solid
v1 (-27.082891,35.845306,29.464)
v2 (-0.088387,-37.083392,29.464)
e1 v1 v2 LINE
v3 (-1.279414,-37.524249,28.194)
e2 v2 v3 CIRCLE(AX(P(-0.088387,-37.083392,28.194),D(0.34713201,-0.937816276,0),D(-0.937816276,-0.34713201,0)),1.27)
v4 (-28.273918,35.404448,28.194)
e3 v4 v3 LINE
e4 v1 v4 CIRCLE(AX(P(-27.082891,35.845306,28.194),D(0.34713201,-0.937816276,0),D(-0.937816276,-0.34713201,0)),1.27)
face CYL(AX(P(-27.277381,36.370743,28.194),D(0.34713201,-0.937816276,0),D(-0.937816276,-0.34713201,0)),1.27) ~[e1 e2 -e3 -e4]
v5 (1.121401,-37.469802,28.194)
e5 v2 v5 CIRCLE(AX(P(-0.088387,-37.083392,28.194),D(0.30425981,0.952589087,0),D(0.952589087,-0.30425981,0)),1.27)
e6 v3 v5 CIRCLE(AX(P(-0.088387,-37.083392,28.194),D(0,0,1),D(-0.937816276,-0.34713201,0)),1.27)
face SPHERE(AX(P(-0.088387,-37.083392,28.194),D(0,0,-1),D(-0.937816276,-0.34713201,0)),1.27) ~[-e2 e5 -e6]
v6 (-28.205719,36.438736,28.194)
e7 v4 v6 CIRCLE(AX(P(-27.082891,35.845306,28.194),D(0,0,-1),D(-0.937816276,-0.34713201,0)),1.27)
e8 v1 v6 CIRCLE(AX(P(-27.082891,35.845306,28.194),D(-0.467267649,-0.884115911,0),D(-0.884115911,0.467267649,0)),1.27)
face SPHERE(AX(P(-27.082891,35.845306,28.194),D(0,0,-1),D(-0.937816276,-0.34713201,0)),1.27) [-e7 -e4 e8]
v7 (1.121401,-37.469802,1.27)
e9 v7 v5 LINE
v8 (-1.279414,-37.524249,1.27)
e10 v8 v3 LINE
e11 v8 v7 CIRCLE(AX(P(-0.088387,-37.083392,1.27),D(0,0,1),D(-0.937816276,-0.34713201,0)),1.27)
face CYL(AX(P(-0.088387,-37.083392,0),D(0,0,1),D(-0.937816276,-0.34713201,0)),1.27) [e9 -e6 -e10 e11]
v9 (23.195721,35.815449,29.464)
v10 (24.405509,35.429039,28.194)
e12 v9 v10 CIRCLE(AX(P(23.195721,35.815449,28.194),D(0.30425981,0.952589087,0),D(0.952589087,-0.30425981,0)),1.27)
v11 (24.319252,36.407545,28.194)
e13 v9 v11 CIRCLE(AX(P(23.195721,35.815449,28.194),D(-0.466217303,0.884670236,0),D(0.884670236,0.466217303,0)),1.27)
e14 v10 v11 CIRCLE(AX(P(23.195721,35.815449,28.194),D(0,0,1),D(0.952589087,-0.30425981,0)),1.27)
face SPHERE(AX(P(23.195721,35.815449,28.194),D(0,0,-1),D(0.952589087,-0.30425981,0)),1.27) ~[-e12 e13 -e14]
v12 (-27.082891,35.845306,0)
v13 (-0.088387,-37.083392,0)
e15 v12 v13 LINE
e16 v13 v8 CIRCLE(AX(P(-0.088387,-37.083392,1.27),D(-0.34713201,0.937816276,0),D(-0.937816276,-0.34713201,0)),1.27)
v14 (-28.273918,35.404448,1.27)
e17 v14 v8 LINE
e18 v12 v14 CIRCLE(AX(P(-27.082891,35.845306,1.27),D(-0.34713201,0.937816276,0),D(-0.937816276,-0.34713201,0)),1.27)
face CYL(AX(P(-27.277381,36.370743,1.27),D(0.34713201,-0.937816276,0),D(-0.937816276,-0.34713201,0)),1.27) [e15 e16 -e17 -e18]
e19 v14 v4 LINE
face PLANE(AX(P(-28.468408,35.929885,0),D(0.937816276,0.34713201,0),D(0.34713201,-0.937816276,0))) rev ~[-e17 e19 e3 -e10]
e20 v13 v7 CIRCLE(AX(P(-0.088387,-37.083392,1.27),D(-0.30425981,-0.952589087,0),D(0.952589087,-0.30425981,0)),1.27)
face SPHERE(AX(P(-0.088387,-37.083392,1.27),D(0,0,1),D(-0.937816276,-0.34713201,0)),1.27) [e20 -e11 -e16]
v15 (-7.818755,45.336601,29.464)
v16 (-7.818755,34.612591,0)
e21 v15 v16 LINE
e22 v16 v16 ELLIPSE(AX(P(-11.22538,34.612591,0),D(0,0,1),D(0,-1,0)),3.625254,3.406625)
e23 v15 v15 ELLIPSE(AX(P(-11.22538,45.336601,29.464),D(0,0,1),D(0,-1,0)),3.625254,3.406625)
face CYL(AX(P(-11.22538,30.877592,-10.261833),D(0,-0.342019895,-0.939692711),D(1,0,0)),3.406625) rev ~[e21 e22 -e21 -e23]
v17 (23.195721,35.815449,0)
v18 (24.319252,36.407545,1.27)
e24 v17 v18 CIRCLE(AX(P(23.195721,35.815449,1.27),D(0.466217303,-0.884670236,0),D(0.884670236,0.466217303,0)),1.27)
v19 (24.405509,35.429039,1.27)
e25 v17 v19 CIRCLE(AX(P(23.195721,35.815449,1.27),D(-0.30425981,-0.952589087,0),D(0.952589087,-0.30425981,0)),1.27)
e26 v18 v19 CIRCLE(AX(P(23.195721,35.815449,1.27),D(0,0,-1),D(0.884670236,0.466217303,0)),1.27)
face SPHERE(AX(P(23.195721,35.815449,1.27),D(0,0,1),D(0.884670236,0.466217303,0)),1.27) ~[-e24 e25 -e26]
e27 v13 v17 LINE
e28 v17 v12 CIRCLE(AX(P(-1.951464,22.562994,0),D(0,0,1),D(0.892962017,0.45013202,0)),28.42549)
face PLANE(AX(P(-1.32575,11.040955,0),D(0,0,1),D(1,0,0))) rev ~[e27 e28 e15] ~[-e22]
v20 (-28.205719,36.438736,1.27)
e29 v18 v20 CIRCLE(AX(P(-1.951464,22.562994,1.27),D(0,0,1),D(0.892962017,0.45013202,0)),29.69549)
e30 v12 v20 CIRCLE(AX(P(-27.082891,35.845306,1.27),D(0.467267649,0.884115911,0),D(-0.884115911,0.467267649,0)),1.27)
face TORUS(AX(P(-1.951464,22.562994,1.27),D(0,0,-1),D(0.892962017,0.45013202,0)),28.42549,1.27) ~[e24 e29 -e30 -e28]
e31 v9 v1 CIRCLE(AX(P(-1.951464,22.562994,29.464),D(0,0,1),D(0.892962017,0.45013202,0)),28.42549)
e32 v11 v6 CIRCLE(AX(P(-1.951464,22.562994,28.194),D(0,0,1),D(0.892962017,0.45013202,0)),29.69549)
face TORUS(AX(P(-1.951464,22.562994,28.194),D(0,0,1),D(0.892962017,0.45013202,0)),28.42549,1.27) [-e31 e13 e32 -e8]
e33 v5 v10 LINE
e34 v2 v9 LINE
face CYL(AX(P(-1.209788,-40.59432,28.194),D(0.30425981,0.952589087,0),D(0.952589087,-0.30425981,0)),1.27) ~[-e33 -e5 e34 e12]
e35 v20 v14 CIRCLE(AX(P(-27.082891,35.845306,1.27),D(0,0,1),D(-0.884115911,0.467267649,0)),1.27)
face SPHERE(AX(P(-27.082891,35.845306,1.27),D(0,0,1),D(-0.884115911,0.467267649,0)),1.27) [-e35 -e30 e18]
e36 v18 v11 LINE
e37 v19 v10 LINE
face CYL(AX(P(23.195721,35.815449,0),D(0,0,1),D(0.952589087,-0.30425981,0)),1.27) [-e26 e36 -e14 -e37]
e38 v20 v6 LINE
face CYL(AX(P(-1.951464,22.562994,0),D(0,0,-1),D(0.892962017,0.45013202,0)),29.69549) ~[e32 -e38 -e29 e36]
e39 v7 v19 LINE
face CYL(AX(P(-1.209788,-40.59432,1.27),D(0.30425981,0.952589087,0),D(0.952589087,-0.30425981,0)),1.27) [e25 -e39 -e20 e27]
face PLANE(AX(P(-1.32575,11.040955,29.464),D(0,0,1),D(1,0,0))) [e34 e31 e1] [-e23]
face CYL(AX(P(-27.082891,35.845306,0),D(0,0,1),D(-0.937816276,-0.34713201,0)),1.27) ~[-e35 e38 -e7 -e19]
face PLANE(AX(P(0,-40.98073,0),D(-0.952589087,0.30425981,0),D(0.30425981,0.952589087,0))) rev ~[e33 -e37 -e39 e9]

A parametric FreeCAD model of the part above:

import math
import FreeCAD as App
import Part
import Sketcher
Q = App.Units.Quantity

doc = App.newDocument("Part")
params = doc.addObject("Spreadsheet::Sheet", "Params")
for row, (alias, value) in enumerate([
    ("pad1_length", "1.16 in"),
    ("fillet_radius", "0.05 in"),
    ("pocket1_length", "5.5 in"),
], start=1):
    params.set(f"A{row}", alias)
    params.set(f"B{row}", "=" + value)
    params.setAlias(f"B{row}", alias)

body = doc.addObject("PartDesign::Body", "Body")

# Sketch on XY plane
sketch1 = doc.addObject("Sketcher::SketchObject", "Sketch")
body.addObject(sketch1)
sketch1.AttachmentSupport = (doc.XY_Plane, [""])
sketch1.MapMode = "FlatFace"
sketch1.addGeometry([
    Part.LineSegment(App.Vector(-28.468408, 35.929885, 0), App.Vector(0, -40.98073, 0)),
    Part.LineSegment(App.Vector(0, -40.98073, 0), App.Vector(24.565481, 35.929885, 0)),
    Part.ArcOfCircle(Part.Circle(App.Vector(-1.951464, 22.562994, 0), App.Vector(0, 0, 1), 29.69549), math.radians(26.752155), math.radians(153.247845)),
], False)
sketch1.addConstraint([
    Sketcher.Constraint("Coincident", 0, 2, 1, 1),
    Sketcher.Constraint("Coincident", 1, 2, 2, 1),
    Sketcher.Constraint("Coincident", 2, 2, 0, 1),
    Sketcher.Constraint("PointOnObject", 0, 2, -2),
    Sketcher.Constraint("Horizontal", 1, 2, 2, 2),
    Sketcher.Constraint("Radius", 2, Q("29.69549 mm")),
    Sketcher.Constraint("Distance", 1, Q("80.738501 mm")),
    Sketcher.Constraint("DistanceY", 0, 2, -1, 1, Q("40.98073 mm")),
    Sketcher.Constraint("DistanceX", -1, 1, 1, 2, Q("24.565481 mm")),
    Sketcher.Constraint("DistanceX", 2, 2, -1, 1, Q("28.468408 mm")),
])
pad1 = doc.addObject("PartDesign::Pad", "Pad")
body.addObject(pad1)
pad1.Profile = sketch1
pad1.setExpression("Length", "Params.pad1_length")
doc.recompute()

fillet = doc.addObject("PartDesign::Fillet", "Fillet")
body.addObject(fillet)
fillet.Base = (pad1, ["Edge1"])
fillet.UseAllEdges = True
fillet.setExpression("Radius", "Params.fillet_radius")

# Sketch on an angled plane
sketch2 = doc.addObject("Sketcher::SketchObject", "Sketch001")
body.addObject(sketch2)
sketch2.Placement = App.Placement(App.Vector(0, 0.313899, 0.862432), App.Rotation(App.Vector(1, 0, 0), App.Vector(0, -0.939692711, 0.342019895), App.Vector(0, -0.342019895, -0.939692711), "ZXY"))
sketch2.addGeometry(Part.Circle(App.Vector(-11.22538, -32.5252, 0), App.Vector(0, 0, 1), 3.406625), False)
sketch2.addConstraint([
    Sketcher.Constraint("Diameter", 0, Q("6.81325 mm")),
    Sketcher.Constraint("DistanceY", 0, 3, -1, 1, Q("32.5252 mm")),
    Sketcher.Constraint("DistanceX", 0, 3, -1, 1, Q("11.22538 mm")),
])
pocket1 = doc.addObject("PartDesign::Pocket", "Pocket")
body.addObject(pocket1)
pocket1.Profile = sketch2
pocket1.setExpression("Length", "Params.pocket1_length")
pocket1.Midplane = True

doc.recompute()
